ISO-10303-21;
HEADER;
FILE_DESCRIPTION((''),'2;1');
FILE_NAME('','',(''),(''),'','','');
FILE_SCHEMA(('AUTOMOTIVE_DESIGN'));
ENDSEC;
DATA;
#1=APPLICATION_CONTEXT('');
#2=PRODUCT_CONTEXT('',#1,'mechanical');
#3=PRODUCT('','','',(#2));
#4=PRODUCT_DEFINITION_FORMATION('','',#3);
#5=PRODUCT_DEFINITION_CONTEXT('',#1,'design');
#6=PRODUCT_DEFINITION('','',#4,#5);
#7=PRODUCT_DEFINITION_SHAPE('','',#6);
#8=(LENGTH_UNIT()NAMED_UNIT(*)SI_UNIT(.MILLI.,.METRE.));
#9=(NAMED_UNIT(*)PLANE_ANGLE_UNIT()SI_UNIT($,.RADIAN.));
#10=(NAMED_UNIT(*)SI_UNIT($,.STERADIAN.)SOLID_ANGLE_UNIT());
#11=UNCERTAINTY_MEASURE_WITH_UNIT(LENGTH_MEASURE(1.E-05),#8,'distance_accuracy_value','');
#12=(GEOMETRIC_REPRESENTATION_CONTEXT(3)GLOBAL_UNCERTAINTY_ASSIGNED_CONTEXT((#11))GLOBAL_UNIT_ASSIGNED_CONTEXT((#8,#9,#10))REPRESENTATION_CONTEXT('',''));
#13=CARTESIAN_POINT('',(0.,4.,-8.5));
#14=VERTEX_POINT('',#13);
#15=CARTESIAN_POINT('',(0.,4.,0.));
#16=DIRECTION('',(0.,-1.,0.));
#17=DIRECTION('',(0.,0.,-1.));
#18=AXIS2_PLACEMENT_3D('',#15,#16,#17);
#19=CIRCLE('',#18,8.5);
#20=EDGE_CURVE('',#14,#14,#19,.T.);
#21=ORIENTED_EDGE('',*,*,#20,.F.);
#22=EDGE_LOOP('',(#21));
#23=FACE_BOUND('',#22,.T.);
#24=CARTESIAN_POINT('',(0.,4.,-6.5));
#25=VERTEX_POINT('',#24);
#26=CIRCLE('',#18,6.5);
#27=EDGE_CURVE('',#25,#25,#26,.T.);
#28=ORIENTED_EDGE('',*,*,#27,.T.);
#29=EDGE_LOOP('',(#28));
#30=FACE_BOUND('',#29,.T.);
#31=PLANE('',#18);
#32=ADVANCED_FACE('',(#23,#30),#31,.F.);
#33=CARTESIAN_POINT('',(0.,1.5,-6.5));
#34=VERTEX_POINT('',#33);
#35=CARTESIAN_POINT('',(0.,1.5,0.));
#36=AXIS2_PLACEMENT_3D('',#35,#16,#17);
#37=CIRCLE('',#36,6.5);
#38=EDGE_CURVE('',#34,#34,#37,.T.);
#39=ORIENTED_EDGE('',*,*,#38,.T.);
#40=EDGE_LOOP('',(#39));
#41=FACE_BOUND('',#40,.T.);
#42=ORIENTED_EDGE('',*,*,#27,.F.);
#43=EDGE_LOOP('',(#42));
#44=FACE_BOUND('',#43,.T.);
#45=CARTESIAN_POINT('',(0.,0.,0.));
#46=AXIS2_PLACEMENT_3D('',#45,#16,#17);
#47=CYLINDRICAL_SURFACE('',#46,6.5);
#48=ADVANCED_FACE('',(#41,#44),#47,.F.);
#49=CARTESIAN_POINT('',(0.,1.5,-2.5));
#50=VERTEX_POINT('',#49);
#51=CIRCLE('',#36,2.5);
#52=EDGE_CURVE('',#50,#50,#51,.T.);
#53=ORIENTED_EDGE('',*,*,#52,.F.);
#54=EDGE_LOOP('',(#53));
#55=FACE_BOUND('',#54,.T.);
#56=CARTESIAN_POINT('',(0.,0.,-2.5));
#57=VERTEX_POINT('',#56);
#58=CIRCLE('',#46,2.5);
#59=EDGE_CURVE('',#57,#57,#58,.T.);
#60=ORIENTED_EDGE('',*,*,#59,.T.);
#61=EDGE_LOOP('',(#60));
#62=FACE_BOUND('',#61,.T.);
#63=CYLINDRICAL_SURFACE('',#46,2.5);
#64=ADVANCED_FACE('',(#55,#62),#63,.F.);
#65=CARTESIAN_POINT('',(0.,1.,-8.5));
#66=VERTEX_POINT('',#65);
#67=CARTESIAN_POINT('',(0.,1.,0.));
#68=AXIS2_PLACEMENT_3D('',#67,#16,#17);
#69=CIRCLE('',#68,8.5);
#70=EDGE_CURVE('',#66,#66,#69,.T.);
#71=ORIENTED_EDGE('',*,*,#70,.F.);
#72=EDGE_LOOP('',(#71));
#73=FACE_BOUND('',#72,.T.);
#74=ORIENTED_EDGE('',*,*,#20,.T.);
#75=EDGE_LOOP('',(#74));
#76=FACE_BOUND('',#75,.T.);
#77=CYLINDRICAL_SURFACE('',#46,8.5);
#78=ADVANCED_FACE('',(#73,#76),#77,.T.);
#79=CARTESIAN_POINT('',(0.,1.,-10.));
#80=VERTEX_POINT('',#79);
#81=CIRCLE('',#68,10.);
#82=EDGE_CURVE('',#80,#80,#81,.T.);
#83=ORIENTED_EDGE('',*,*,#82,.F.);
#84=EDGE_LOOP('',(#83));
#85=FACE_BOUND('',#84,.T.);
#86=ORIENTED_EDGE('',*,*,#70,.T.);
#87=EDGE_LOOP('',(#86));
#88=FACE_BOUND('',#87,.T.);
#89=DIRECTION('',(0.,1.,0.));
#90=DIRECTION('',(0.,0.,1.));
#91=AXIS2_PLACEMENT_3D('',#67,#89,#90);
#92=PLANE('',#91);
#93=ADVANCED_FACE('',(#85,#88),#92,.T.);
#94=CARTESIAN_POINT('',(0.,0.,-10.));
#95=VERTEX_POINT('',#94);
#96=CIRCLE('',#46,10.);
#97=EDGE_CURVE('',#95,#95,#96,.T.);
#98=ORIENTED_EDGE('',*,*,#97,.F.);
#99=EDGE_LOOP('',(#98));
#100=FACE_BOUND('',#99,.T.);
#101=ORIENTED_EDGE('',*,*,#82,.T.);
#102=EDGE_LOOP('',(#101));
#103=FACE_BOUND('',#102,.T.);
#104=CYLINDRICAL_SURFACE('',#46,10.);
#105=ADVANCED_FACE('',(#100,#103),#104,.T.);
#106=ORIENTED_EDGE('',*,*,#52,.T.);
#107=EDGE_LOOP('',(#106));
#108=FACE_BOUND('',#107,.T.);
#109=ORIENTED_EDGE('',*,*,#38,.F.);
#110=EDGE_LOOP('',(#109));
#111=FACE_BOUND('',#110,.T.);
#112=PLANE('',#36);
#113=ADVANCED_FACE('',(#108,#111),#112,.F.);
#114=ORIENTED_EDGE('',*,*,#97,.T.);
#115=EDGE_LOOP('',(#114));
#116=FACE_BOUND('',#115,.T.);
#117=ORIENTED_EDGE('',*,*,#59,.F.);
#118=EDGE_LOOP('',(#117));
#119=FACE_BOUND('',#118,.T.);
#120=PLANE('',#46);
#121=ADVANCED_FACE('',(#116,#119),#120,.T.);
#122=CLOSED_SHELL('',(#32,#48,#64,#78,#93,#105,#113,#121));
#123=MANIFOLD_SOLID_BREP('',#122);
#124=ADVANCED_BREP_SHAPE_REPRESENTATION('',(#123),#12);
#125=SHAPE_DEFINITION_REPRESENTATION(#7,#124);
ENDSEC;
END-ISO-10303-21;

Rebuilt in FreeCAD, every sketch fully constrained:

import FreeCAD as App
import Part
import Sketcher

V = App.Vector
Q = App.Units.Quantity


def add_polygon(sketch, points):
    """Adds a closed chain of lines whose ends are joined by coincident constraints."""
    first, n = sketch.GeometryCount, len(points)
    for a, b in zip(points, points[1:] + points[:1]):
        sketch.addGeometry(Part.LineSegment(App.Vector(*a, 0), App.Vector(*b, 0)), False)
    for i in range(n):
        sketch.addConstraint(Sketcher.Constraint("Coincident", first + i, 2, first + (i + 1) % n, 1))

doc = App.newDocument("Part")
body = doc.addObject("PartDesign::Body", "Body")

# Sketch on YZ plane
sketch1 = body.newObject("Sketcher::SketchObject", "Sketch")
sketch1.AttachmentSupport = (doc.getObject("YZ_Plane"), [""])
sketch1.MapMode = "FlatFace"
add_polygon(sketch1, [(1, 8.5), (1, 10), (0, 10), (0, 2.5), (1.5, 2.5), (1.5, 6.5), (4, 6.5), (4, 8.5)])  # lines 0-7
sketch1.addConstraint([
    Sketcher.Constraint("Vertical", 0),
    Sketcher.Constraint("Horizontal", 1),
    Sketcher.Constraint("Vertical", 2),
    Sketcher.Constraint("Horizontal", 3),
    Sketcher.Constraint("Vertical", 4),
    Sketcher.Constraint("Horizontal", 5),
    Sketcher.Constraint("Vertical", 6),
    Sketcher.Constraint("Horizontal", 7),
    Sketcher.Constraint("PointOnObject", 1, 2, -2),
    Sketcher.Constraint("Equal", 3, 0),
    Sketcher.Constraint("DistanceX", 1, 2, 1, 1, Q("1 mm")),
    Sketcher.Constraint("DistanceX", 7, 2, 7, 1, Q("3 mm")),
    Sketcher.Constraint("DistanceY", 4, 1, 4, 2, Q("4 mm")),
    Sketcher.Constraint("DistanceY", 6, 1, 6, 2, Q("2 mm")),
    Sketcher.Constraint("DistanceX", 3, 1, 3, 2, Q("1.5 mm")),
    Sketcher.Constraint("DistanceY", -1, 1, 0, 2, Q("10 mm")),
])
revolution = body.newObject("PartDesign::Revolution", "Revolution")
revolution.Profile = sketch1
revolution.ReferenceAxis = (sketch1, ["H_Axis"])
revolution.Angle = 360

doc.recompute()
